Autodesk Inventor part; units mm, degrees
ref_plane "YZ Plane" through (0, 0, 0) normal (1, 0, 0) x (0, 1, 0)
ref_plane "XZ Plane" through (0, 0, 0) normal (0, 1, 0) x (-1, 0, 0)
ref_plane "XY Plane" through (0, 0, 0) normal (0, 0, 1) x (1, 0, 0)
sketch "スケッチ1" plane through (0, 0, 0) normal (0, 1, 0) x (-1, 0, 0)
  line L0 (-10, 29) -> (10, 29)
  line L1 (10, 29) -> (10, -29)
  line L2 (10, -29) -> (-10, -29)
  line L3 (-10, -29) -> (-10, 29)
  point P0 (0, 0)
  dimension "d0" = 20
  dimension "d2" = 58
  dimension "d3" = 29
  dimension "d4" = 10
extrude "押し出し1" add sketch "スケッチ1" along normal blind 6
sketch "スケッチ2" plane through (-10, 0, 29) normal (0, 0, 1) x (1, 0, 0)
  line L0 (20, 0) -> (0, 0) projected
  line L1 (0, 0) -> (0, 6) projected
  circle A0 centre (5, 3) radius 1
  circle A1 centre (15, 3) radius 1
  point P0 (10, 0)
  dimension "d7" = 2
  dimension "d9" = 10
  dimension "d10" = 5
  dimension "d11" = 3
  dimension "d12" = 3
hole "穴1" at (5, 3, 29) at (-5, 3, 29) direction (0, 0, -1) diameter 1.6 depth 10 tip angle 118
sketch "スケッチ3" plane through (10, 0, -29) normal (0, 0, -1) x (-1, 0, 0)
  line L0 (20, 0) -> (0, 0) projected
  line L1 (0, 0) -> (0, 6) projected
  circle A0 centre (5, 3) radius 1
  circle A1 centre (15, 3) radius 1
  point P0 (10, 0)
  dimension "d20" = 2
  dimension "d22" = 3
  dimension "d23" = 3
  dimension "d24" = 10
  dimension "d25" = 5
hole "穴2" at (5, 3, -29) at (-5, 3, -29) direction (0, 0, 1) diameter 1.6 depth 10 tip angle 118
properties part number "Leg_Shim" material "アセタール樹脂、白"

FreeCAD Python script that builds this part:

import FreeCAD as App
import Part
import Sketcher
from FreeCAD import Vector
Q = App.Units.Quantity


def add_polygon(sketch, points):
    """Adds a closed chain of lines whose ends are joined by coincident constraints."""
    first, n = sketch.GeometryCount, len(points)
    for a, b in zip(points, points[1:] + points[:1]):
        sketch.addGeometry(Part.LineSegment(App.Vector(*a, 0), App.Vector(*b, 0)), False)
    for i in range(n):
        sketch.addConstraint(Sketcher.Constraint("Coincident", first + i, 2, first + (i + 1) % n, 1))

doc = App.newDocument("Part")
body = doc.addObject("PartDesign::Body", "Body")

# Sketch on XZ plane
sketch1 = body.newObject("Sketcher::SketchObject", "Sketch")
sketch1.AttachmentSupport = (doc.getObject("XZ_Plane"), [""])
sketch1.MapMode = "FlatFace"
add_polygon(sketch1, [(-10, 29), (10, 29), (10, -29), (-10, -29)])  # lines 0-3
sketch1.addConstraint([
    Sketcher.Constraint("Horizontal", 0),
    Sketcher.Constraint("Vertical", 1),
    Sketcher.Constraint("Horizontal", 2),
    Sketcher.Constraint("Vertical", 3),
    Sketcher.Constraint("Symmetric", 0, 2, 2, 2, -1, 1),
    Sketcher.Constraint("DistanceX", 0, 1, 0, 2, Q("20 mm")),
    Sketcher.Constraint("DistanceY", 1, 2, 1, 1, Q("58 mm")),
])
pad1 = body.newObject("PartDesign::Pad", "Pad")
pad1.Profile = sketch1
pad1.Length = 6
pad1.Reversed = True

# Sketch on XY plane
sketch2 = body.newObject("Sketcher::SketchObject", "Sketch001")
sketch2.AttachmentSupport = (doc.getObject("XY_Plane"), [""])
sketch2.MapMode = "FlatFace"
sketch2.AttachmentOffset = App.Placement(Vector(0, 0, 29), App.Rotation())
sketch2.addGeometry([
    Part.Circle(Vector(5, 3, 0), Vector(0, 0, 1), 0.8),
    Part.Circle(Vector(-5, 3, 0), Vector(0, 0, 1), 0.8),
], False)
sketch2.addConstraint([
    Sketcher.Constraint("Equal", 0, 1),
    Sketcher.Constraint("Symmetric", 0, 3, 1, 3, -2),
    Sketcher.Constraint("Diameter", 0, Q("1.6 mm")),
    Sketcher.Constraint("DistanceX", -1, 1, 0, 3, Q("5 mm")),
    Sketcher.Constraint("DistanceY", -1, 1, 0, 3, Q("3 mm")),
])
doc.recompute()
hole = body.newObject("PartDesign::Hole", "Hole")
hole.Profile = sketch2
hole.ThreadType = "None"
hole.Diameter = 1.6
hole.DepthType = "Dimension"
hole.Depth = 10
hole.DrillPoint = "Angled"
hole.DrillPointAngle = 118

# Sketch on XY plane
sketch3 = body.newObject("Sketcher::SketchObject", "Sketch002")
sketch3.AttachmentSupport = (doc.getObject("XY_Plane"), [""])
sketch3.MapMode = "FlatFace"
sketch3.AttachmentOffset = App.Placement(Vector(0, 0, -29), App.Rotation())
sketch3.addGeometry([
    Part.Circle(Vector(5, 3, 0), Vector(0, 0, 1), 0.8),
    Part.Circle(Vector(-5, 3, 0), Vector(0, 0, 1), 0.8),
], False)
sketch3.addConstraint([
    Sketcher.Constraint("Equal", 0, 1),
    Sketcher.Constraint("Symmetric", 0, 3, 1, 3, -2),
    Sketcher.Constraint("Diameter", 0, Q("1.6 mm")),
    Sketcher.Constraint("DistanceX", -1, 1, 0, 3, Q("5 mm")),
    Sketcher.Constraint("DistanceY", -1, 1, 0, 3, Q("3 mm")),
])
doc.recompute()
hole2 = body.newObject("PartDesign::Hole", "Hole001")
hole2.Profile = sketch3
hole2.ThreadType = "None"
hole2.Diameter = 1.6
hole2.DepthType = "Dimension"
hole2.Depth = 10
hole2.DrillPoint = "Angled"
hole2.DrillPointAngle = 118
hole2.Reversed = True

doc.recompute()
